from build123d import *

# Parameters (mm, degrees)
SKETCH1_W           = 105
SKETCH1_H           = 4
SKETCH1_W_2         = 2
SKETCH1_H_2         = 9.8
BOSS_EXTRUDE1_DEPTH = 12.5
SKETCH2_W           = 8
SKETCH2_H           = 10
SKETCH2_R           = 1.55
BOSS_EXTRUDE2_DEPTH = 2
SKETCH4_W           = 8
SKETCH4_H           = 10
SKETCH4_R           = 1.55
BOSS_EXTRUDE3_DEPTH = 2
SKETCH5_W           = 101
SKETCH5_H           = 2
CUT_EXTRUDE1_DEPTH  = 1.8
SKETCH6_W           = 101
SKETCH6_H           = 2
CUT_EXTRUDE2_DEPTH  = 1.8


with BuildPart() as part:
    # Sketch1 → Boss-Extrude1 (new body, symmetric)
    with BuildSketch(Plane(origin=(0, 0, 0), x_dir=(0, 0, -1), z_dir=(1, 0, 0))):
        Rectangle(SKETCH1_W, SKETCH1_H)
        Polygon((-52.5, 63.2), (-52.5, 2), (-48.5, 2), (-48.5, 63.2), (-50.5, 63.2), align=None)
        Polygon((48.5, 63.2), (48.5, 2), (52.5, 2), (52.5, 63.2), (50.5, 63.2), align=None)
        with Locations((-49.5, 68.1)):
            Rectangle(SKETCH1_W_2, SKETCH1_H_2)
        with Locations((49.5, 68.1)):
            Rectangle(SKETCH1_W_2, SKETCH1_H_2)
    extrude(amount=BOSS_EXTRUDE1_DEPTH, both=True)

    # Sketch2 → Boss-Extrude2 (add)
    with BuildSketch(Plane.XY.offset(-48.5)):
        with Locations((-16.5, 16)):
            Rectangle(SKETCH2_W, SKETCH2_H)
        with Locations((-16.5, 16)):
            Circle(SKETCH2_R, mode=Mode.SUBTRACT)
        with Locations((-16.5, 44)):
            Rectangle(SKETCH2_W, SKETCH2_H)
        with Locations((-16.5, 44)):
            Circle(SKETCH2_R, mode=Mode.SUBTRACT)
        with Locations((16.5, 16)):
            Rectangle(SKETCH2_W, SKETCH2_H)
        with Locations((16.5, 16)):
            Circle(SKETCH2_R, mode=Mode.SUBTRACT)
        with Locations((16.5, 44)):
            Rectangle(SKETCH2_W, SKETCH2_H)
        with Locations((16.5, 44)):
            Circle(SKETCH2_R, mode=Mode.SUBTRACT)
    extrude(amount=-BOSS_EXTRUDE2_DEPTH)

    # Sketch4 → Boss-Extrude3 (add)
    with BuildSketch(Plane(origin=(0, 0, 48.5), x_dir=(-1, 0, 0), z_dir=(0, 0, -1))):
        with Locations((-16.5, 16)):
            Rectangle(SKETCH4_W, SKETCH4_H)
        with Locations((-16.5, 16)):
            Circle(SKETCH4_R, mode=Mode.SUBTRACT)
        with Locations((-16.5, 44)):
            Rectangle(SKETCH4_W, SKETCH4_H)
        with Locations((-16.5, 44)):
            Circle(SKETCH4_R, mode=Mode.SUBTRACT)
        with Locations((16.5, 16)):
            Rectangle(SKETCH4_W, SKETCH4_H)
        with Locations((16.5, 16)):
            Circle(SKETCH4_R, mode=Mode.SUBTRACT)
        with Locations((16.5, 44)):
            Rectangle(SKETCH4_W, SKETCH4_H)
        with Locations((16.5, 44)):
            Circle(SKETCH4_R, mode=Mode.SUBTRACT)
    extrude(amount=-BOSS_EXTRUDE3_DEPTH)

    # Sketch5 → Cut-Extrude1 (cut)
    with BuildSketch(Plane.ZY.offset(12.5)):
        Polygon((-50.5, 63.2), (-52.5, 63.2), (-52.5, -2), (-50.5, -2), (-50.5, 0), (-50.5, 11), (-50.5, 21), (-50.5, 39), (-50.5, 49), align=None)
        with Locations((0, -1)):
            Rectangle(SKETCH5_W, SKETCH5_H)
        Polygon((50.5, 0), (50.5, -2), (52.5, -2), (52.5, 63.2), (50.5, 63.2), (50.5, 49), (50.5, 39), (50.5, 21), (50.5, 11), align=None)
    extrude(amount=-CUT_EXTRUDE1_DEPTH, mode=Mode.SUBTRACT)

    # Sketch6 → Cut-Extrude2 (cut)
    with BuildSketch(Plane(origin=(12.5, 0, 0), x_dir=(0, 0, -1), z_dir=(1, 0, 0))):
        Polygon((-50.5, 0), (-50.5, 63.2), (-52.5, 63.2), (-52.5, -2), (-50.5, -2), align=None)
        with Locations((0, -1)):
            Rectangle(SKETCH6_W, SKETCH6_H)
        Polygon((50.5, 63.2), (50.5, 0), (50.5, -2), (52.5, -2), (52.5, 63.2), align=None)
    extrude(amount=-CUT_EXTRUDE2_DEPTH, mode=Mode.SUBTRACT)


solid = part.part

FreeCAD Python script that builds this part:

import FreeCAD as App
import Part
import Sketcher

V = App.Vector
Q = App.Units.Quantity


def add_polygon(sketch, points):
    """Adds a closed chain of lines whose ends are joined by coincident constraints."""
    first, n = sketch.GeometryCount, len(points)
    for a, b in zip(points, points[1:] + points[:1]):
        sketch.addGeometry(Part.LineSegment(App.Vector(*a, 0), App.Vector(*b, 0)), False)
    for i in range(n):
        sketch.addConstraint(Sketcher.Constraint("Coincident", first + i, 2, first + (i + 1) % n, 1))

doc = App.newDocument("Part")
body = doc.addObject("PartDesign::Body", "Body")

# Sketch on YZ plane
sketch1 = body.newObject("Sketcher::SketchObject", "Sketch")
sketch1.AttachmentSupport = (doc.getObject("YZ_Plane"), [""])
sketch1.MapMode = "FlatFace"
add_polygon(sketch1, [(-2, 52.5), (-2, -52.5), (63.2, -52.5), (63.2, -50.5), (73, -50.5), (73, -48.5), (2, -48.5), (2, 48.5), (73, 48.5), (73, 50.5), (63.2, 50.5), (63.2, 52.5)])  # lines 0-11
sketch1.addConstraint(Sketcher.Constraint("Vertical", 0))
sketch1.addConstraint(Sketcher.Constraint("Horizontal", 1))
sketch1.addConstraint(Sketcher.Constraint("Vertical", 2))
sketch1.addConstraint(Sketcher.Constraint("Horizontal", 3))
sketch1.addConstraint(Sketcher.Constraint("Vertical", 4))
sketch1.addConstraint(Sketcher.Constraint("Horizontal", 5))
sketch1.addConstraint(Sketcher.Constraint("Vertical", 6))
sketch1.addConstraint(Sketcher.Constraint("Horizontal", 7))
sketch1.addConstraint(Sketcher.Constraint("Vertical", 8))
sketch1.addConstraint(Sketcher.Constraint("Horizontal", 9))
sketch1.addConstraint(Sketcher.Constraint("Vertical", 10))
sketch1.addConstraint(Sketcher.Constraint("Horizontal", 11))
sketch1.addConstraint(Sketcher.Constraint("Symmetric", 4, 2, 7, 2, -1))
sketch1.addConstraint(Sketcher.Constraint("Symmetric", 2, 2, 9, 2, -1))
sketch1.addConstraint(Sketcher.Constraint("Equal", 2, 4))
sketch1.addConstraint(Sketcher.Constraint("Equal", 8, 10))
sketch1.addConstraint(Sketcher.Constraint("DistanceX", 5, 2, 5, 1, Q("71 mm")))
sketch1.addConstraint(Sketcher.Constraint("DistanceY", 0, 2, 0, 1, Q("105 mm")))
sketch1.addConstraint(Sketcher.Constraint("DistanceY", 2, 1, 2, 2, Q("2 mm")))
sketch1.addConstraint(Sketcher.Constraint("DistanceX", 1, 1, 1, 2, Q("65.2 mm")))
sketch1.addConstraint(Sketcher.Constraint("DistanceX", 3, 1, 3, 2, Q("9.8 mm")))
sketch1.addConstraint(Sketcher.Constraint("DistanceX", 0, 2, -1, 1, Q("2 mm")))
pad1 = body.newObject("PartDesign::Pad", "Pad")
pad1.Profile = sketch1
pad1.Length = 25
pad1.Midplane = True

# Sketch on XY plane
sketch2 = body.newObject("Sketcher::SketchObject", "Sketch001")
sketch2.AttachmentSupport = (doc.getObject("XY_Plane"), [""])
sketch2.MapMode = "FlatFace"
sketch2.AttachmentOffset = App.Placement(V(0, 0, -48.5), App.Rotation())
add_polygon(sketch2, [(-20.5, 21), (-20.5, 11), (-12.5, 11), (-12.5, 21)])  # lines 0-3
sketch2.addGeometry(Part.Circle(V(-16.5, 16, 0), V(0, 0, 1), 1.55), False)  # 4
add_polygon(sketch2, [(-20.5, 49), (-20.5, 39), (-12.5, 39), (-12.5, 49)])  # lines 5-8
sketch2.addGeometry(Part.Circle(V(-16.5, 44, 0), V(0, 0, 1), 1.55), False)  # 9
add_polygon(sketch2, [(12.5, 21), (12.5, 11), (20.5, 11), (20.5, 21)])  # lines 10-13
sketch2.addGeometry(Part.Circle(V(16.5, 16, 0), V(0, 0, 1), 1.55), False)  # 14
add_polygon(sketch2, [(12.5, 49), (12.5, 39), (20.5, 39), (20.5, 49)])  # lines 15-18
sketch2.addGeometry(Part.Circle(V(16.5, 44, 0), V(0, 0, 1), 1.55), False)  # 19
sketch2.addConstraint(Sketcher.Constraint("Vertical", 0))
sketch2.addConstraint(Sketcher.Constraint("Horizontal", 1))
sketch2.addConstraint(Sketcher.Constraint("Vertical", 2))
sketch2.addConstraint(Sketcher.Constraint("Horizontal", 3))
sketch2.addConstraint(Sketcher.Constraint("Vertical", 5))
sketch2.addConstraint(Sketcher.Constraint("Horizontal", 6))
sketch2.addConstraint(Sketcher.Constraint("Vertical", 7))
sketch2.addConstraint(Sketcher.Constraint("Horizontal", 8))
sketch2.addConstraint(Sketcher.Constraint("Vertical", 10))
sketch2.addConstraint(Sketcher.Constraint("Horizontal", 11))
sketch2.addConstraint(Sketcher.Constraint("Vertical", 12))
sketch2.addConstraint(Sketcher.Constraint("Horizontal", 13))
sketch2.addConstraint(Sketcher.Constraint("Vertical", 15))
sketch2.addConstraint(Sketcher.Constraint("Horizontal", 16))
sketch2.addConstraint(Sketcher.Constraint("Vertical", 17))
sketch2.addConstraint(Sketcher.Constraint("Horizontal", 18))
sketch2.addConstraint(Sketcher.Constraint("Equal", 4, 9))
sketch2.addConstraint(Sketcher.Constraint("Equal", 9, 14))
sketch2.addConstraint(Sketcher.Constraint("Equal", 14, 19))
sketch2.addConstraint(Sketcher.Constraint("Symmetric", 4, 3, 14, 3, -2))
sketch2.addConstraint(Sketcher.Constraint("Symmetric", 9, 3, 19, 3, -2))
sketch2.addConstraint(Sketcher.Constraint("Symmetric", 1, 2, 10, 2, -2))
sketch2.addConstraint(Sketcher.Constraint("Symmetric", 3, 2, 12, 2, -2))
sketch2.addConstraint(Sketcher.Constraint("Symmetric", 6, 2, 15, 2, -2))
sketch2.addConstraint(Sketcher.Constraint("Symmetric", 8, 2, 17, 2, -2))
sketch2.addConstraint(Sketcher.Constraint("Vertical", 4, 3, 9, 3))
sketch2.addConstraint(Sketcher.Constraint("Vertical", 3, 2, 5, 2))
sketch2.addConstraint(Sketcher.Constraint("Vertical", 2, 2, 6, 2))
sketch2.addConstraint(Sketcher.Constraint("Equal", 2, 5))
sketch2.addConstraint(Sketcher.Constraint("Diameter", 4, Q("3.1 mm")))
sketch2.addConstraint(Sketcher.Constraint("DistanceX", 1, 1, 1, 2, Q("8 mm")))
sketch2.addConstraint(Sketcher.Constraint("DistanceY", 0, 2, 0, 1, Q("10 mm")))
sketch2.addConstraint(Sketcher.Constraint("DistanceY", -1, 1, 4, 3, Q("16 mm")))
sketch2.addConstraint(Sketcher.Constraint("DistanceY", -1, 1, 9, 3, Q("44 mm")))
sketch2.addConstraint(Sketcher.Constraint("DistanceY", -1, 1, 0, 2, Q("11 mm")))
sketch2.addConstraint(Sketcher.Constraint("DistanceY", -1, 1, 5, 2, Q("39 mm")))
sketch2.addConstraint(Sketcher.Constraint("DistanceX", 4, 3, 14, 3, Q("33 mm")))
sketch2.addConstraint(Sketcher.Constraint("DistanceX", 0, 2, 4, 3, Q("4 mm")))
pad2 = body.newObject("PartDesign::Pad", "Pad001")
pad2.Profile = sketch2
pad2.Length = 2
pad2.Reversed = True

# Sketch on XY plane
sketch3 = body.newObject("Sketcher::SketchObject", "Sketch002")
sketch3.AttachmentSupport = (doc.getObject("XY_Plane"), [""])
sketch3.MapMode = "FlatFace"
sketch3.AttachmentOffset = App.Placement(V(0, 0, 48.5), App.Rotation())
add_polygon(sketch3, [(20.5, 21), (20.5, 11), (12.5, 11), (12.5, 21)])  # lines 0-3
sketch3.addGeometry(Part.Circle(V(16.5, 16, 0), V(0, 0, 1), 1.55), False)  # 4
add_polygon(sketch3, [(20.5, 49), (20.5, 39), (12.5, 39), (12.5, 49)])  # lines 5-8
sketch3.addGeometry(Part.Circle(V(16.5, 44, 0), V(0, 0, 1), 1.55), False)  # 9
add_polygon(sketch3, [(-12.5, 21), (-12.5, 11), (-20.5, 11), (-20.5, 21)])  # lines 10-13
sketch3.addGeometry(Part.Circle(V(-16.5, 16, 0), V(0, 0, 1), 1.55), False)  # 14
add_polygon(sketch3, [(-12.5, 49), (-12.5, 39), (-20.5, 39), (-20.5, 49)])  # lines 15-18
sketch3.addGeometry(Part.Circle(V(-16.5, 44, 0), V(0, 0, 1), 1.55), False)  # 19
sketch3.addConstraint(Sketcher.Constraint("Vertical", 0))
sketch3.addConstraint(Sketcher.Constraint("Horizontal", 1))
sketch3.addConstraint(Sketcher.Constraint("Vertical", 2))
sketch3.addConstraint(Sketcher.Constraint("Horizontal", 3))
sketch3.addConstraint(Sketcher.Constraint("Vertical", 5))
sketch3.addConstraint(Sketcher.Constraint("Horizontal", 6))
sketch3.addConstraint(Sketcher.Constraint("Vertical", 7))
sketch3.addConstraint(Sketcher.Constraint("Horizontal", 8))
sketch3.addConstraint(Sketcher.Constraint("Vertical", 10))
sketch3.addConstraint(Sketcher.Constraint("Horizontal", 11))
sketch3.addConstraint(Sketcher.Constraint("Vertical", 12))
sketch3.addConstraint(Sketcher.Constraint("Horizontal", 13))
sketch3.addConstraint(Sketcher.Constraint("Vertical", 15))
sketch3.addConstraint(Sketcher.Constraint("Horizontal", 16))
sketch3.addConstraint(Sketcher.Constraint("Vertical", 17))
sketch3.addConstraint(Sketcher.Constraint("Horizontal", 18))
sketch3.addConstraint(Sketcher.Constraint("Equal", 4, 9))
sketch3.addConstraint(Sketcher.Constraint("Equal", 9, 14))
sketch3.addConstraint(Sketcher.Constraint("Equal", 14, 19))
sketch3.addConstraint(Sketcher.Constraint("Symmetric", 4, 3, 14, 3, -2))
sketch3.addConstraint(Sketcher.Constraint("Symmetric", 9, 3, 19, 3, -2))
sketch3.addConstraint(Sketcher.Constraint("Symmetric", 1, 2, 10, 2, -2))
sketch3.addConstraint(Sketcher.Constraint("Symmetric", 3, 2, 12, 2, -2))
sketch3.addConstraint(Sketcher.Constraint("Symmetric", 6, 2, 15, 2, -2))
sketch3.addConstraint(Sketcher.Constraint("Symmetric", 8, 2, 17, 2, -2))
sketch3.addConstraint(Sketcher.Constraint("Vertical", 4, 3, 9, 3))
sketch3.addConstraint(Sketcher.Constraint("Vertical", 3, 2, 5, 2))
sketch3.addConstraint(Sketcher.Constraint("Vertical", 2, 2, 6, 2))
sketch3.addConstraint(Sketcher.Constraint("Equal", 2, 5))
sketch3.addConstraint(Sketcher.Constraint("Diameter", 4, Q("3.1 mm")))
sketch3.addConstraint(Sketcher.Constraint("DistanceX", 1, 2, 1, 1, Q("8 mm")))
sketch3.addConstraint(Sketcher.Constraint("DistanceY", 0, 2, 0, 1, Q("10 mm")))
sketch3.addConstraint(Sketcher.Constraint("DistanceY", -1, 1, 4, 3, Q("16 mm")))
sketch3.addConstraint(Sketcher.Constraint("DistanceY", -1, 1, 9, 3, Q("44 mm")))
sketch3.addConstraint(Sketcher.Constraint("DistanceY", -1, 1, 0, 2, Q("11 mm")))
sketch3.addConstraint(Sketcher.Constraint("DistanceY", -1, 1, 5, 2, Q("39 mm")))
sketch3.addConstraint(Sketcher.Constraint("DistanceX", 14, 3, 4, 3, Q("33 mm")))
sketch3.addConstraint(Sketcher.Constraint("DistanceX", 4, 3, 0, 2, Q("4 mm")))
pad3 = body.newObject("PartDesign::Pad", "Pad002")
pad3.Profile = sketch3
pad3.Length = 2

# Sketch on YZ plane
sketch4 = body.newObject("Sketcher::SketchObject", "Sketch003")
sketch4.AttachmentSupport = (doc.getObject("YZ_Plane"), [""])
sketch4.MapMode = "FlatFace"
sketch4.AttachmentOffset = App.Placement(V(0, 0, -12.5), App.Rotation())
add_polygon(sketch4, [(63.2, -50.5), (63.2, -52.5), (-2, -52.5), (-2, 52.5), (63.2, 52.5), (63.2, 50.5), (0, 50.5), (0, -50.5)])  # lines 0-7
sketch4.addConstraint(Sketcher.Constraint("Vertical", 0))
sketch4.addConstraint(Sketcher.Constraint("Horizontal", 1))
sketch4.addConstraint(Sketcher.Constraint("Vertical", 2))
sketch4.addConstraint(Sketcher.Constraint("Horizontal", 3))
sketch4.addConstraint(Sketcher.Constraint("Vertical", 4))
sketch4.addConstraint(Sketcher.Constraint("Horizontal", 5))
sketch4.addConstraint(Sketcher.Constraint("Vertical", 6))
sketch4.addConstraint(Sketcher.Constraint("Horizontal", 7))
sketch4.addConstraint(Sketcher.Constraint("Symmetric", 5, 2, 6, 2, -1, 1))
sketch4.addConstraint(Sketcher.Constraint("Symmetric", 0, 2, 3, 2, -1))
sketch4.addConstraint(Sketcher.Constraint("DistanceY", 0, 2, 0, 1, Q("2 mm")))
sketch4.addConstraint(Sketcher.Constraint("DistanceY", 2, 1, 2, 2, Q("105 mm")))
sketch4.addConstraint(Sketcher.Constraint("DistanceX", 1, 2, 1, 1, Q("65.2 mm")))
sketch4.addConstraint(Sketcher.Constraint("DistanceX", 5, 2, 5, 1, Q("63.2 mm")))
pocket1 = body.newObject("PartDesign::Pocket", "Pocket")
pocket1.Profile = sketch4
pocket1.Length = 1.8
pocket1.Reversed = True

# Sketch on YZ plane
sketch5 = body.newObject("Sketcher::SketchObject", "Sketch004")
sketch5.AttachmentSupport = (doc.getObject("YZ_Plane"), [""])
sketch5.MapMode = "FlatFace"
sketch5.AttachmentOffset = App.Placement(V(0, 0, 12.5), App.Rotation())
add_polygon(sketch5, [(63.2, 50.5), (63.2, 52.5), (-2, 52.5), (-2, -52.5), (63.2, -52.5), (63.2, -50.5), (0, -50.5), (0, 50.5)])  # lines 0-7
sketch5.addConstraint(Sketcher.Constraint("Vertical", 0))
sketch5.addConstraint(Sketcher.Constraint("Horizontal", 1))
sketch5.addConstraint(Sketcher.Constraint("Vertical", 2))
sketch5.addConstraint(Sketcher.Constraint("Horizontal", 3))
sketch5.addConstraint(Sketcher.Constraint("Vertical", 4))
sketch5.addConstraint(Sketcher.Constraint("Horizontal", 5))
sketch5.addConstraint(Sketcher.Constraint("Vertical", 6))
sketch5.addConstraint(Sketcher.Constraint("Horizontal", 7))
sketch5.addConstraint(Sketcher.Constraint("Symmetric", 5, 2, 6, 2, -1, 1))
sketch5.addConstraint(Sketcher.Constraint("Symmetric", 0, 2, 3, 2, -1))
sketch5.addConstraint(Sketcher.Constraint("DistanceY", 0, 1, 0, 2, Q("2 mm")))
sketch5.addConstraint(Sketcher.Constraint("DistanceY", 2, 2, 2, 1, Q("105 mm")))
sketch5.addConstraint(Sketcher.Constraint("DistanceX", 1, 2, 1, 1, Q("65.2 mm")))
sketch5.addConstraint(Sketcher.Constraint("DistanceX", 5, 2, 5, 1, Q("63.2 mm")))
pocket2 = body.newObject("PartDesign::Pocket", "Pocket001")
pocket2.Profile = sketch5
pocket2.Length = 1.8

doc.recompute()
